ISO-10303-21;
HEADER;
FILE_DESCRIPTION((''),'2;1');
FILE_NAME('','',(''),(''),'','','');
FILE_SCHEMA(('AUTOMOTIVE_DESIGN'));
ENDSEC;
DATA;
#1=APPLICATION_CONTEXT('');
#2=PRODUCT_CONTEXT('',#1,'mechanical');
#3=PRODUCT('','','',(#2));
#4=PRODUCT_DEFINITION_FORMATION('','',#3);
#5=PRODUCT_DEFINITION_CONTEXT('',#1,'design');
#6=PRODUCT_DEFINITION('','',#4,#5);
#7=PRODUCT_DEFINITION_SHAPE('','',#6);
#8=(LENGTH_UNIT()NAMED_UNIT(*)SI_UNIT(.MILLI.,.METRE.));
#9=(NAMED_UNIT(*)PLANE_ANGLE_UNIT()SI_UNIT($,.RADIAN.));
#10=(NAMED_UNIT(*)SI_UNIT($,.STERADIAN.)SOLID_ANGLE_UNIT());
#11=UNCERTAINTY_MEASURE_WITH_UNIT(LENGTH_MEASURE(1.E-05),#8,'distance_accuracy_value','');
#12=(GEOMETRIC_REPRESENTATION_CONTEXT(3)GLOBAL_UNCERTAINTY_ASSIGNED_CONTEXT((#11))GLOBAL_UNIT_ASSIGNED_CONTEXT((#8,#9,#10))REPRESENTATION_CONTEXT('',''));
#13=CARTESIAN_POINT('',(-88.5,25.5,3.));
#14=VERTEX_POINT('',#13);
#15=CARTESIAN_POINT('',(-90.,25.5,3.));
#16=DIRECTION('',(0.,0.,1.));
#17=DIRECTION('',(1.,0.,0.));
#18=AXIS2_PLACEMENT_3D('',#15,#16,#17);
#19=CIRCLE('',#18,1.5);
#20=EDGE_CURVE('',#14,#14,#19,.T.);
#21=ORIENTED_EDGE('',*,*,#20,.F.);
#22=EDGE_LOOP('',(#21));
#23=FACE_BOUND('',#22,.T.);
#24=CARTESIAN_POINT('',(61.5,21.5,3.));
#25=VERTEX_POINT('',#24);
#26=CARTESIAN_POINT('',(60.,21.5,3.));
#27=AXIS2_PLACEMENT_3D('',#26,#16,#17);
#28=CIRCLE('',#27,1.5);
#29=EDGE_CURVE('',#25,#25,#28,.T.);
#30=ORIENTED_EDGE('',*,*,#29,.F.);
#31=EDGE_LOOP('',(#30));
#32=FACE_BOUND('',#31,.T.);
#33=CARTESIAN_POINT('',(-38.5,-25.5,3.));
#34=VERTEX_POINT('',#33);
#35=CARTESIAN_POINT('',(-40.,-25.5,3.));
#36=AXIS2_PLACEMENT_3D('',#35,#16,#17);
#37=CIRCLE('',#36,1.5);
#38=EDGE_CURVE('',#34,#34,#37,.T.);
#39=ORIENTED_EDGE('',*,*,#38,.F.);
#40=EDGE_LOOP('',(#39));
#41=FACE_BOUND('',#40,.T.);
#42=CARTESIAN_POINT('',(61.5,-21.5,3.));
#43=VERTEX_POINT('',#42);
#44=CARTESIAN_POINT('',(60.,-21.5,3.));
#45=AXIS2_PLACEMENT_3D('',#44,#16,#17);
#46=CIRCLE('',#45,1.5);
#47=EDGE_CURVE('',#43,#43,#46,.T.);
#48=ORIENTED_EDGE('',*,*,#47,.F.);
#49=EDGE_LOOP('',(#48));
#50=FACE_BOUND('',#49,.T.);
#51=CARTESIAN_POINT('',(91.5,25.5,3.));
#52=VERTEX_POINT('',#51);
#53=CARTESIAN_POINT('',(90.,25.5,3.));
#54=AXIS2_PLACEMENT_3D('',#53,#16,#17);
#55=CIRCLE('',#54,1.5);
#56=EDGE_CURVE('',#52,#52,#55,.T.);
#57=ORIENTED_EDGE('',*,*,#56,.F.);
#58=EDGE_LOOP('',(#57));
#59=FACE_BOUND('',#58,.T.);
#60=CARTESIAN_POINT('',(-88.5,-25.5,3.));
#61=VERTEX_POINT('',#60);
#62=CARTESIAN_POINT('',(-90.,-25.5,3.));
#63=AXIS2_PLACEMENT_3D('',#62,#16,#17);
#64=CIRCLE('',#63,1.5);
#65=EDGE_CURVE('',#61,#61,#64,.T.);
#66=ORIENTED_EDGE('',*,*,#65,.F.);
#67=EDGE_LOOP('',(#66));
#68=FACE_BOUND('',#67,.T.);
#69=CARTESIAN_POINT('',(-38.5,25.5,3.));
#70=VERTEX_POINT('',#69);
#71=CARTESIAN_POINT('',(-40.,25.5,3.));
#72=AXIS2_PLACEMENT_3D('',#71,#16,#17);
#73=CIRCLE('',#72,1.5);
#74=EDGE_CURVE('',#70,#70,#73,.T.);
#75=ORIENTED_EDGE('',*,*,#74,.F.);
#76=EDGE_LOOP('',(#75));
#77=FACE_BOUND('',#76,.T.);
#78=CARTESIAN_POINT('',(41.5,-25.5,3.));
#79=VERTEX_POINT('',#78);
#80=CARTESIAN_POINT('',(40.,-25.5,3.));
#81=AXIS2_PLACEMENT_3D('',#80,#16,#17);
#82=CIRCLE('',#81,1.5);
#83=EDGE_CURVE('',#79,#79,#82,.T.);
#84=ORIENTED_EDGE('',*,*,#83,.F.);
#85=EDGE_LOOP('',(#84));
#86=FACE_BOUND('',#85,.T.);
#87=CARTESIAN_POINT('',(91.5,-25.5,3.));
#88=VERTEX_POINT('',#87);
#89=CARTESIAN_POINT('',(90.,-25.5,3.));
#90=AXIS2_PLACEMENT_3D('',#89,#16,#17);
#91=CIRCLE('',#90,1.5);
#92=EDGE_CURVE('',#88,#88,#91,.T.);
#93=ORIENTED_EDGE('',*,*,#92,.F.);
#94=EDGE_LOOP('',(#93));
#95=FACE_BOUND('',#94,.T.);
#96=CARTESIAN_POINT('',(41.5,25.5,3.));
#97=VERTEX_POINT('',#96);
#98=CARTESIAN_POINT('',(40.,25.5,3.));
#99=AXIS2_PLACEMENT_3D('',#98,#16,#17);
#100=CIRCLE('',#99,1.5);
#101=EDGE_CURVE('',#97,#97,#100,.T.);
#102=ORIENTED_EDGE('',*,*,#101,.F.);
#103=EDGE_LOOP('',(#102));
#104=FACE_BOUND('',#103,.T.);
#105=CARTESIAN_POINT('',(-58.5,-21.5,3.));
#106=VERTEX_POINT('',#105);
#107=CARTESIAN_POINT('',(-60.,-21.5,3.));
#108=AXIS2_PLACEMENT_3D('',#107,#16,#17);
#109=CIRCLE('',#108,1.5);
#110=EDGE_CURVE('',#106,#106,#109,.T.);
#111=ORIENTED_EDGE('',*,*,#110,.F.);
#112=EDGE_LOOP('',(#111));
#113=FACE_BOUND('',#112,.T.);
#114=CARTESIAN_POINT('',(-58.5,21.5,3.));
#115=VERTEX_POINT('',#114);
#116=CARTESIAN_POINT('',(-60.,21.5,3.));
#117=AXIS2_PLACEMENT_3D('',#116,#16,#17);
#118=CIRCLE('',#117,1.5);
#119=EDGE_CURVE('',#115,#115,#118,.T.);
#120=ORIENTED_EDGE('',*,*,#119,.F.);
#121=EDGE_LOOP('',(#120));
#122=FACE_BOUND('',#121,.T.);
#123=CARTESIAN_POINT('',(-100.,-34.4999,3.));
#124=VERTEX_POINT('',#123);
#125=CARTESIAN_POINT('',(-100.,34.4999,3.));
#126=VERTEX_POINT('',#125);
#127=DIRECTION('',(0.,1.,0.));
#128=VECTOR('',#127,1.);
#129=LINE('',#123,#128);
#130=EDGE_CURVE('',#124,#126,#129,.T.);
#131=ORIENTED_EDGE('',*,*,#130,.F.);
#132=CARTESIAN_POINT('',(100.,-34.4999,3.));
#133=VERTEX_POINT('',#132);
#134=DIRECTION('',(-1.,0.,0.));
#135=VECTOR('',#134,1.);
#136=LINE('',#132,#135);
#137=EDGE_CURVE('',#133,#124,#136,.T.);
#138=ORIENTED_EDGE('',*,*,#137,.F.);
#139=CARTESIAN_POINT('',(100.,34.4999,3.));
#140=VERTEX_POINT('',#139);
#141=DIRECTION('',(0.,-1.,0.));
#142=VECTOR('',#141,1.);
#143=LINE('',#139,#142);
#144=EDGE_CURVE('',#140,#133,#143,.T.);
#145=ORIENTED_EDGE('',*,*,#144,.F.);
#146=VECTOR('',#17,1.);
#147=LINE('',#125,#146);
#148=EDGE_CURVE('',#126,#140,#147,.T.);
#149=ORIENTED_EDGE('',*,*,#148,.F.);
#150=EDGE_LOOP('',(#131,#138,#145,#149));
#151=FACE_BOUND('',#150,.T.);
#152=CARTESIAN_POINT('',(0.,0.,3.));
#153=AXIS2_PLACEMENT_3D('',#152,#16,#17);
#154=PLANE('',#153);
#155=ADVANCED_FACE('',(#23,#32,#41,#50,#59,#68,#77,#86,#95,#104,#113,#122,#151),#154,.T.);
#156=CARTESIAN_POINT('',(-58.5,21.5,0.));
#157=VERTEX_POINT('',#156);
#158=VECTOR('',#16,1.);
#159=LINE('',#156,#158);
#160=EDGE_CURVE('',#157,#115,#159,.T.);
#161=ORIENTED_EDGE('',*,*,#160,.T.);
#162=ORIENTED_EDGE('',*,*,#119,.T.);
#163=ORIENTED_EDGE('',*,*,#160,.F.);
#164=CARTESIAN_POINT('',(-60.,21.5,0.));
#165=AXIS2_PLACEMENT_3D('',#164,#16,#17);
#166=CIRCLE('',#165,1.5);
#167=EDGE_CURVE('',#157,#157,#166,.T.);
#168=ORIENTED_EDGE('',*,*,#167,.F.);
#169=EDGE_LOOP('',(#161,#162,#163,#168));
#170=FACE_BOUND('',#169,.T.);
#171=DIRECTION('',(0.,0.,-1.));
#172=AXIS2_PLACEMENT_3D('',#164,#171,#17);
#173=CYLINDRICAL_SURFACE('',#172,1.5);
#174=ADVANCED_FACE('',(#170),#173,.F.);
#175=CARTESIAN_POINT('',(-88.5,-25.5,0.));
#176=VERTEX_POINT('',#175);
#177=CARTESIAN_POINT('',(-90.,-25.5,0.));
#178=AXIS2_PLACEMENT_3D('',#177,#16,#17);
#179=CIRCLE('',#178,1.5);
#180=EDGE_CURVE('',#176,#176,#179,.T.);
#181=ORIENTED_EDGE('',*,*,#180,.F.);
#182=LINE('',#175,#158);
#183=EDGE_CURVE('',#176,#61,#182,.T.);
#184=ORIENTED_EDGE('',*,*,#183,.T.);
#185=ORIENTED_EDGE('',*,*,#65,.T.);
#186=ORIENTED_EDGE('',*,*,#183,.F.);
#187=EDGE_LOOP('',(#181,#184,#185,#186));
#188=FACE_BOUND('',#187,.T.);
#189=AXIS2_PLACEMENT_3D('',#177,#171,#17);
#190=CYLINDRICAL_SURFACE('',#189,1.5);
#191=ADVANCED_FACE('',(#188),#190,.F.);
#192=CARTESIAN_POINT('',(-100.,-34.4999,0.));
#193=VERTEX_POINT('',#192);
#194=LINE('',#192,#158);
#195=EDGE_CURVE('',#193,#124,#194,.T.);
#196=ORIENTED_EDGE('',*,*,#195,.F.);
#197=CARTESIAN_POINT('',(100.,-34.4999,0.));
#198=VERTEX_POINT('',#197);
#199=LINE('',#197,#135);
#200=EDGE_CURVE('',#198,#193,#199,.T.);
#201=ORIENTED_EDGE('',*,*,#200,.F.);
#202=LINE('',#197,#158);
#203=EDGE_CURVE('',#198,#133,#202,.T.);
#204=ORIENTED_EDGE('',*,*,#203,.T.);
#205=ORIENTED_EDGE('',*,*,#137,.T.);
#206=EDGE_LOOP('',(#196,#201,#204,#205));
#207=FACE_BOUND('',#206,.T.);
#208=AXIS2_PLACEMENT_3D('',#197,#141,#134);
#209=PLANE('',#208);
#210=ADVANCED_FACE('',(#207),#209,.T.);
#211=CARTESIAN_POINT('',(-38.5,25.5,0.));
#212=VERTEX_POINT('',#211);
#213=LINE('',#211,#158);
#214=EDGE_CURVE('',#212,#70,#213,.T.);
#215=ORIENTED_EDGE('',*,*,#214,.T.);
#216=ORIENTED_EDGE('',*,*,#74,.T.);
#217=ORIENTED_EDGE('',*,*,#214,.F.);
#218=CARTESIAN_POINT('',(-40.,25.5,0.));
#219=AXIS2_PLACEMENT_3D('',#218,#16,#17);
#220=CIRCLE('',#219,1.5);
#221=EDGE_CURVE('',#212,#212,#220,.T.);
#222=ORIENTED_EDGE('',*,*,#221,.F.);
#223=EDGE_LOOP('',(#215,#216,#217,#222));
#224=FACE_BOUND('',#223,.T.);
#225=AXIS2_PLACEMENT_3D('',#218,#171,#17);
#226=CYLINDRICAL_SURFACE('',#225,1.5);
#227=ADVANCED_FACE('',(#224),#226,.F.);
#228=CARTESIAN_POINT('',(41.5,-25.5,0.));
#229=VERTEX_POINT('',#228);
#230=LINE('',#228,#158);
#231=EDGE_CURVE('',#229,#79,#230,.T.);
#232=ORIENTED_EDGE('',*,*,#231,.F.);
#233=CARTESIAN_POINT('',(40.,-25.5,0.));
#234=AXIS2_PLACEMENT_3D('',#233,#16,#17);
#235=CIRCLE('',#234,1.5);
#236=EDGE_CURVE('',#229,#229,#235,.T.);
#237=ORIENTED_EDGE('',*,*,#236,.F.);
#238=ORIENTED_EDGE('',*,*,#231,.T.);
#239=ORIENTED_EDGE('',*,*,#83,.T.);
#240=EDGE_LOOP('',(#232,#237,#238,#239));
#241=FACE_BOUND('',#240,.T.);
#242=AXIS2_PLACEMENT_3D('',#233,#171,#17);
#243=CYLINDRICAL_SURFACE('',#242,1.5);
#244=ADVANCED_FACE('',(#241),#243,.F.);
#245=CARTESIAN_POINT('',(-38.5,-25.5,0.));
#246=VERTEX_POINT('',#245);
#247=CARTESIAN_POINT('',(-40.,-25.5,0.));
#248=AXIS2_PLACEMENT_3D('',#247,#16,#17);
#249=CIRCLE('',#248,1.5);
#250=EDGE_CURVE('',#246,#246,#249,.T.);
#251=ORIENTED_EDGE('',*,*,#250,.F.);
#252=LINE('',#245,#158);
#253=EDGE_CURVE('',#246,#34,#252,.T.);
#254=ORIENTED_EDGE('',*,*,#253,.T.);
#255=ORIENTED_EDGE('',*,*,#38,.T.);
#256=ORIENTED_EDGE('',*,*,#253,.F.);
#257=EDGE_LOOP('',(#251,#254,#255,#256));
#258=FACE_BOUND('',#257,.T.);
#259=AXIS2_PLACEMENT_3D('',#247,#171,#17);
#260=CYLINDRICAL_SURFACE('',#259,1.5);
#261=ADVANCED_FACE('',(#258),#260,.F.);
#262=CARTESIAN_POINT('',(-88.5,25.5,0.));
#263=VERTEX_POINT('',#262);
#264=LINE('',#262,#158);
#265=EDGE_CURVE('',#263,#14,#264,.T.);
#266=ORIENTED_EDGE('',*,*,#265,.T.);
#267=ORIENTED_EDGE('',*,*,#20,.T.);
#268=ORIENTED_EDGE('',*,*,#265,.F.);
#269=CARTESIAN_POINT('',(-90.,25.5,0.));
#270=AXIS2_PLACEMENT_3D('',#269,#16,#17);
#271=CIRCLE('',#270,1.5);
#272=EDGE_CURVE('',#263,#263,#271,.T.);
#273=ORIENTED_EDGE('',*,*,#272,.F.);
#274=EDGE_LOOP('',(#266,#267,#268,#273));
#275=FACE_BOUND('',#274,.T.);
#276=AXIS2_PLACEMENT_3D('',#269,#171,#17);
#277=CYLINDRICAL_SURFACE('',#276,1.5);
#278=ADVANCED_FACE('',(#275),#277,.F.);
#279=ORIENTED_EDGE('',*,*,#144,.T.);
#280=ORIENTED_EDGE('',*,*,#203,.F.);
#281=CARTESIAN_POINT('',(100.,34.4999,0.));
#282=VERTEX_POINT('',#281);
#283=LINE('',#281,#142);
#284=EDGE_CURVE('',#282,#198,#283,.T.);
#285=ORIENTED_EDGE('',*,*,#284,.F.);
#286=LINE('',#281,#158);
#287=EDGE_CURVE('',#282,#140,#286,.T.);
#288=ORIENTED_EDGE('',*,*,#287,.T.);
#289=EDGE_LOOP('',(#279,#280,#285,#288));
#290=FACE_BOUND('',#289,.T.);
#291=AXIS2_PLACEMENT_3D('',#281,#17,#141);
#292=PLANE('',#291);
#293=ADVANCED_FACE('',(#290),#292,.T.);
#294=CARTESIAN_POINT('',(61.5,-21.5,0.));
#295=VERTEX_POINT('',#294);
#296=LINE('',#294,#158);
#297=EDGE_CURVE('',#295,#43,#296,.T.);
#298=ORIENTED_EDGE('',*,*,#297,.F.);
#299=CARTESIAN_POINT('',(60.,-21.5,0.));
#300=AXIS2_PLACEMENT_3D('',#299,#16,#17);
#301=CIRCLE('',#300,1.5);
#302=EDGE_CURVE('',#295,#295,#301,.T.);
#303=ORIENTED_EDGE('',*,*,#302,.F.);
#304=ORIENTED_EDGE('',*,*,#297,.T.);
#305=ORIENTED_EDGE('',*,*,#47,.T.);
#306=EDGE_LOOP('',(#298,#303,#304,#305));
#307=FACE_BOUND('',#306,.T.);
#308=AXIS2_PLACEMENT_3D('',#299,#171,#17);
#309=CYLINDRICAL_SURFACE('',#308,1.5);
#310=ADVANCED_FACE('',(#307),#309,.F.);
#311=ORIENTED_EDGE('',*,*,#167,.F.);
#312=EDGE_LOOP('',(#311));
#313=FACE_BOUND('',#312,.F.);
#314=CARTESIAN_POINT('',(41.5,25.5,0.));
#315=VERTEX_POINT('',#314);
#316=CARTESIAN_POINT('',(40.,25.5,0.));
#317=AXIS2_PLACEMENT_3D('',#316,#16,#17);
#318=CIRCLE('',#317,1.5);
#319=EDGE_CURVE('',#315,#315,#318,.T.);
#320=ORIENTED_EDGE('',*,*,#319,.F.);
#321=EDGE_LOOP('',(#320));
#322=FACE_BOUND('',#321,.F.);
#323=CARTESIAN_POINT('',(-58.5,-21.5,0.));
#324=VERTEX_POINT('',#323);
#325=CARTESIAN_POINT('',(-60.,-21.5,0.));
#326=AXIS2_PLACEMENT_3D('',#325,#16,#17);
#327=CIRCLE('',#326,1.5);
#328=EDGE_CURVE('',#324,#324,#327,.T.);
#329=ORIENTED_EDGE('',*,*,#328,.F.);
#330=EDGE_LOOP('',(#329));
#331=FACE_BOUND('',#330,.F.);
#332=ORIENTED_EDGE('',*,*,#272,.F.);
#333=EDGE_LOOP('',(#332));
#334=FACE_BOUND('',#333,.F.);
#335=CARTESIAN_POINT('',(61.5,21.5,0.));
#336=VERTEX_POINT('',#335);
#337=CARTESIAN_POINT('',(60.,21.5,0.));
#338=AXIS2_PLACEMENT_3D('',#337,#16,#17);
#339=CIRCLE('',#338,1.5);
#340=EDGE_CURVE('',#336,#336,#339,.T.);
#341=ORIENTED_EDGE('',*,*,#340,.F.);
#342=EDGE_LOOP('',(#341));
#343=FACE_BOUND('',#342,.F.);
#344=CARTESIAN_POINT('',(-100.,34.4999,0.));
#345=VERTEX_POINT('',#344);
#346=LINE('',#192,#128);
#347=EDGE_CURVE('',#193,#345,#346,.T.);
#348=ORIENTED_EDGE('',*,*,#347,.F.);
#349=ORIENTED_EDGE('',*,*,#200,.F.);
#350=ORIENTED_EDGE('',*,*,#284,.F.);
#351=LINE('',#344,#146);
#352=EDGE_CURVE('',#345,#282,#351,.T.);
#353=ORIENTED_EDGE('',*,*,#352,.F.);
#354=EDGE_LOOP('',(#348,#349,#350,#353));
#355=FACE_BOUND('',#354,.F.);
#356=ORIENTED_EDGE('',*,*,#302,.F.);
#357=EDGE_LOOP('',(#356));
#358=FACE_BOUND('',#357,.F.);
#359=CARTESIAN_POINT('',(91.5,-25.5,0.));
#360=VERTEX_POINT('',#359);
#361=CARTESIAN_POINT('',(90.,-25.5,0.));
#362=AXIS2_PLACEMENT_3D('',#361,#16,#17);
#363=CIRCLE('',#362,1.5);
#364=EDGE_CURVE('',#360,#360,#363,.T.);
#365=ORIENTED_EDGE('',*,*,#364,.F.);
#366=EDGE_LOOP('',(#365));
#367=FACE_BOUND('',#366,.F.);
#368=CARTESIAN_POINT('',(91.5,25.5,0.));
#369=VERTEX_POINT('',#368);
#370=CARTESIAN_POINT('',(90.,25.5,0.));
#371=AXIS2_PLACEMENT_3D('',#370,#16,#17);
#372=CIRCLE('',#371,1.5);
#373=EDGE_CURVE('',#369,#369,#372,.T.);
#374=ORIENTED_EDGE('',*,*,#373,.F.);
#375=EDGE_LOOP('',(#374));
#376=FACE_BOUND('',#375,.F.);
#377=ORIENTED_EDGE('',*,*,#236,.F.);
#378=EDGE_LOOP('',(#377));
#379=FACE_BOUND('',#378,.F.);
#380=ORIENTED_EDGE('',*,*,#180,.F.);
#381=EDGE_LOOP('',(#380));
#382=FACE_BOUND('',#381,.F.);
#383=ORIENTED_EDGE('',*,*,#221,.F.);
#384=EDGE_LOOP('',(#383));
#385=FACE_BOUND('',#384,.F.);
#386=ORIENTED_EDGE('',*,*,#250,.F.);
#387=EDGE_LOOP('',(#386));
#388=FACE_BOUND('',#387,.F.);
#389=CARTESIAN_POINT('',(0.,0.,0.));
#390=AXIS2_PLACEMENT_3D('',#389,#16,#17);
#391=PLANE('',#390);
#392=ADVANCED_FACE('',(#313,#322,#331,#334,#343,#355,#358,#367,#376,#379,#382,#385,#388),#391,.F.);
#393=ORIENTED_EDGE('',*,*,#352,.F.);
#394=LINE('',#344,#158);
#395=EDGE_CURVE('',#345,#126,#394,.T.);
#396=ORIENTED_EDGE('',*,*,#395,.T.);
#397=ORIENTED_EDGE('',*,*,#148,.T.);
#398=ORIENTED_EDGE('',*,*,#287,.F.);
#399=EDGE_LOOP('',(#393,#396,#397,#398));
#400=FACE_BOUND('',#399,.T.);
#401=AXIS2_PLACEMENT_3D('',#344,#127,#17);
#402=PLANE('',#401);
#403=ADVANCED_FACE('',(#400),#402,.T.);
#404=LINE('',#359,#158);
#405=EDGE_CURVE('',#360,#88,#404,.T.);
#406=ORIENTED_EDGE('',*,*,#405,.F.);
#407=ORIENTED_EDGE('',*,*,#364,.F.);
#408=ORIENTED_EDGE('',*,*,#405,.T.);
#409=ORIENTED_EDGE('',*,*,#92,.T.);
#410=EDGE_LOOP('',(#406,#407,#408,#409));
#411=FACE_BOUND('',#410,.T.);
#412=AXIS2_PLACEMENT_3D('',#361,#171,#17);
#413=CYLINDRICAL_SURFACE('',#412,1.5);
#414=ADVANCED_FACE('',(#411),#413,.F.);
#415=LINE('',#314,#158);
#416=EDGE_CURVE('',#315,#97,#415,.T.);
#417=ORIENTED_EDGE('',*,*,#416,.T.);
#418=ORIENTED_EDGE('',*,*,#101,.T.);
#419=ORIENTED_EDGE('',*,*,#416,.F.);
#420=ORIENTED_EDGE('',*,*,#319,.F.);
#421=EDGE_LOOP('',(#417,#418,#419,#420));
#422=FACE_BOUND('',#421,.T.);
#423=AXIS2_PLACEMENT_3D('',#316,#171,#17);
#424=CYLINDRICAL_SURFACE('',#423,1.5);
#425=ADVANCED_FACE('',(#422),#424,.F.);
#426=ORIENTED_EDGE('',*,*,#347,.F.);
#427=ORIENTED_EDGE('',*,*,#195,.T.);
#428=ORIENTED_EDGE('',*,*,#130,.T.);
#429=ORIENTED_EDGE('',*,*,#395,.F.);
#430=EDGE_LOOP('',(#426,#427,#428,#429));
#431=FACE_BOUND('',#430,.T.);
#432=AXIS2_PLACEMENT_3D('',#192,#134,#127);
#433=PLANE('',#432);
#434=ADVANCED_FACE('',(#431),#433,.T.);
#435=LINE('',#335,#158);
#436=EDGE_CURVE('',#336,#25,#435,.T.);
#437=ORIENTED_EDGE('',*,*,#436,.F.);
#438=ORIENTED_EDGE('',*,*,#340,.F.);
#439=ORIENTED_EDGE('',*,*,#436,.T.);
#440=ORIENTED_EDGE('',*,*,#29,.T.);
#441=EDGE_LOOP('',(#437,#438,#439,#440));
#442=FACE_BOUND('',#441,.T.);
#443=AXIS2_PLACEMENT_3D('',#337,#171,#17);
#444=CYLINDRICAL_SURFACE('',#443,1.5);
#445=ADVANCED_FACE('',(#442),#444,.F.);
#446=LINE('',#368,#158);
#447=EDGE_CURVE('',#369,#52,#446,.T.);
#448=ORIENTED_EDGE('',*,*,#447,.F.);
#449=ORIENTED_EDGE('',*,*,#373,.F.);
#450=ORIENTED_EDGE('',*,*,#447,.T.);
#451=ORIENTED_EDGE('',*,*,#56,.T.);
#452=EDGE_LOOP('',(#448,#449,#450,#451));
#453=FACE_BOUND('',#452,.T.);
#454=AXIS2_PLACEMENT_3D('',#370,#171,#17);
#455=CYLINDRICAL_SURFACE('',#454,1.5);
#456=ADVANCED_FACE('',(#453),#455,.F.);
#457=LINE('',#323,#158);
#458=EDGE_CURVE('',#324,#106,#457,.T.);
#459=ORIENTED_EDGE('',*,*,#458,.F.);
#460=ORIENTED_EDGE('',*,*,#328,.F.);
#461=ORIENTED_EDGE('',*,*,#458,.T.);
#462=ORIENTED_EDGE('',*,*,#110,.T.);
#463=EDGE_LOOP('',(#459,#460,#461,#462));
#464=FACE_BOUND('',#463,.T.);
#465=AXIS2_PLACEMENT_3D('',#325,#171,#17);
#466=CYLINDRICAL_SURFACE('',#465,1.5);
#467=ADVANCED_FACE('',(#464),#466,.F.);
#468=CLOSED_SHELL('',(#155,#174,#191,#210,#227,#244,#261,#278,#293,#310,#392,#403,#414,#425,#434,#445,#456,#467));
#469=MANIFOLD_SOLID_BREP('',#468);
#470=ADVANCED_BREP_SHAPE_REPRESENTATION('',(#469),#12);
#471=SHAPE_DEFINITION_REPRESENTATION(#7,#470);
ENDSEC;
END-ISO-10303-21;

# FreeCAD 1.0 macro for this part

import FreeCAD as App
import Part
import Sketcher
Q = App.Units.Quantity


def add_polygon(sketch, points):
    """Adds a closed chain of lines whose ends are joined by coincident constraints."""
    first, n = sketch.GeometryCount, len(points)
    for a, b in zip(points, points[1:] + points[:1]):
        sketch.addGeometry(Part.LineSegment(App.Vector(*a, 0), App.Vector(*b, 0)), False)
    for i in range(n):
        sketch.addConstraint(Sketcher.Constraint("Coincident", first + i, 2, first + (i + 1) % n, 1))

doc = App.newDocument("Part")
params = doc.addObject("Spreadsheet::Sheet", "Params")
for row, (alias, value) in enumerate([
    ("sketch1_diameter", "3 mm"),
    ("sketch1_width", "200 mm"),
    ("pad1_length", "3 mm"),
], start=1):
    params.set(f"A{row}", alias)
    params.set(f"B{row}", "=" + value)
    params.setAlias(f"B{row}", alias)

body = doc.addObject("PartDesign::Body", "Body")

# Sketch on XY plane
sketch1 = body.newObject("Sketcher::SketchObject", "Sketch")
sketch1.AttachmentSupport = (doc.getObject("XY_Plane"), [""])
sketch1.MapMode = "FlatFace"
add_polygon(sketch1, [(100, 34.5), (-100, 34.5), (-100, -34.5), (100, -34.5)])  # lines 0-3
sketch1.addGeometry(Part.Circle(App.Vector(-90, -25.5, 0), App.Vector(0, 0, 1), 1.5), False)  # 4
sketch1.addGeometry(Part.Circle(App.Vector(-60, -21.5, 0), App.Vector(0, 0, 1), 1.5), False)  # 5
sketch1.addGeometry(Part.Circle(App.Vector(-40, -25.5, 0), App.Vector(0, 0, 1), 1.5), False)  # 6
sketch1.addGeometry(Part.Circle(App.Vector(40, -25.5, 0), App.Vector(0, 0, 1), 1.5), False)  # 7
sketch1.addGeometry(Part.Circle(App.Vector(60, -21.5, 0), App.Vector(0, 0, 1), 1.5), False)  # 8
sketch1.addGeometry(Part.Circle(App.Vector(90, -25.5, 0), App.Vector(0, 0, 1), 1.5), False)  # 9
sketch1.addGeometry(Part.Circle(App.Vector(-90, 25.5, 0), App.Vector(0, 0, 1), 1.5), False)  # 10
sketch1.addGeometry(Part.Circle(App.Vector(-60, 21.5, 0), App.Vector(0, 0, 1), 1.5), False)  # 11
sketch1.addGeometry(Part.Circle(App.Vector(-40, 25.5, 0), App.Vector(0, 0, 1), 1.5), False)  # 12
sketch1.addGeometry(Part.Circle(App.Vector(40, 25.5, 0), App.Vector(0, 0, 1), 1.5), False)  # 13
sketch1.addGeometry(Part.Circle(App.Vector(60, 21.5, 0), App.Vector(0, 0, 1), 1.5), False)  # 14
sketch1.addGeometry(Part.Circle(App.Vector(90, 25.5, 0), App.Vector(0, 0, 1), 1.5), False)  # 15
sketch1.addConstraint(Sketcher.Constraint("Horizontal", 0))
sketch1.addConstraint(Sketcher.Constraint("Vertical", 1))
sketch1.addConstraint(Sketcher.Constraint("Horizontal", 2))
sketch1.addConstraint(Sketcher.Constraint("Vertical", 3))
sketch1.addConstraint(Sketcher.Constraint("Equal", 4, 5))
sketch1.addConstraint(Sketcher.Constraint("Equal", 5, 6))
sketch1.addConstraint(Sketcher.Constraint("Equal", 6, 7))
sketch1.addConstraint(Sketcher.Constraint("Equal", 7, 8))
sketch1.addConstraint(Sketcher.Constraint("Equal", 8, 9))
sketch1.addConstraint(Sketcher.Constraint("Equal", 9, 10))
sketch1.addConstraint(Sketcher.Constraint("Equal", 10, 11))
sketch1.addConstraint(Sketcher.Constraint("Equal", 11, 12))
sketch1.addConstraint(Sketcher.Constraint("Equal", 12, 13))
sketch1.addConstraint(Sketcher.Constraint("Equal", 13, 14))
sketch1.addConstraint(Sketcher.Constraint("Equal", 14, 15))
sketch1.addConstraint(Sketcher.Constraint("Symmetric", 9, 3, 10, 3, -1, 1))
sketch1.addConstraint(Sketcher.Constraint("Symmetric", 8, 3, 11, 3, -1, 1))
sketch1.addConstraint(Sketcher.Constraint("Symmetric", 7, 3, 12, 3, -1, 1))
sketch1.addConstraint(Sketcher.Constraint("Symmetric", 6, 3, 13, 3, -1, 1))
sketch1.addConstraint(Sketcher.Constraint("Symmetric", 5, 3, 14, 3, -1, 1))
sketch1.addConstraint(Sketcher.Constraint("Symmetric", 4, 3, 15, 3, -1, 1))
sketch1.addConstraint(Sketcher.Constraint("Symmetric", 0, 2, 2, 2, -1, 1))
sketch1.addConstraint(Sketcher.Constraint("Symmetric", 6, 3, 7, 3, -2))
sketch1.addConstraint(Sketcher.Constraint("Symmetric", 5, 3, 8, 3, -2))
sketch1.addConstraint(Sketcher.Constraint("Symmetric", 4, 3, 9, 3, -2))
sketch1.addConstraint(Sketcher.Constraint("Horizontal", 4, 3, 6, 3))
sketch1.addConstraint(Sketcher.Constraint("Diameter", 4, Q("3 mm")))
sketch1.addConstraint(Sketcher.Constraint("DistanceX", 0, 2, 0, 1, Q("200 mm")))
sketch1.addConstraint(Sketcher.Constraint("DistanceX", 4, 3, -1, 1, Q("90 mm")))
sketch1.addConstraint(Sketcher.Constraint("DistanceX", 5, 3, -1, 1, Q("60 mm")))
sketch1.addConstraint(Sketcher.Constraint("DistanceX", 6, 3, -1, 1, Q("40 mm")))
sketch1.addConstraint(Sketcher.Constraint("DistanceY", 4, 3, 5, 3, Q("4 mm")))
sketch1.addConstraint(Sketcher.Constraint("DistanceY", 4, 3, 10, 3, Q("51 mm")))
sketch1.addConstraint(Sketcher.Constraint("DistanceY", 10, 3, 0, 2, Q("9 mm")))
sketch1.setExpression("Constraints[30]", "Params.sketch1_diameter")
sketch1.setExpression("Constraints[31]", "Params.sketch1_width")
pad1 = body.newObject("PartDesign::Pad", "Pad")
pad1.Profile = sketch1
pad1.setExpression("Length", "Params.pad1_length")

doc.recompute()
